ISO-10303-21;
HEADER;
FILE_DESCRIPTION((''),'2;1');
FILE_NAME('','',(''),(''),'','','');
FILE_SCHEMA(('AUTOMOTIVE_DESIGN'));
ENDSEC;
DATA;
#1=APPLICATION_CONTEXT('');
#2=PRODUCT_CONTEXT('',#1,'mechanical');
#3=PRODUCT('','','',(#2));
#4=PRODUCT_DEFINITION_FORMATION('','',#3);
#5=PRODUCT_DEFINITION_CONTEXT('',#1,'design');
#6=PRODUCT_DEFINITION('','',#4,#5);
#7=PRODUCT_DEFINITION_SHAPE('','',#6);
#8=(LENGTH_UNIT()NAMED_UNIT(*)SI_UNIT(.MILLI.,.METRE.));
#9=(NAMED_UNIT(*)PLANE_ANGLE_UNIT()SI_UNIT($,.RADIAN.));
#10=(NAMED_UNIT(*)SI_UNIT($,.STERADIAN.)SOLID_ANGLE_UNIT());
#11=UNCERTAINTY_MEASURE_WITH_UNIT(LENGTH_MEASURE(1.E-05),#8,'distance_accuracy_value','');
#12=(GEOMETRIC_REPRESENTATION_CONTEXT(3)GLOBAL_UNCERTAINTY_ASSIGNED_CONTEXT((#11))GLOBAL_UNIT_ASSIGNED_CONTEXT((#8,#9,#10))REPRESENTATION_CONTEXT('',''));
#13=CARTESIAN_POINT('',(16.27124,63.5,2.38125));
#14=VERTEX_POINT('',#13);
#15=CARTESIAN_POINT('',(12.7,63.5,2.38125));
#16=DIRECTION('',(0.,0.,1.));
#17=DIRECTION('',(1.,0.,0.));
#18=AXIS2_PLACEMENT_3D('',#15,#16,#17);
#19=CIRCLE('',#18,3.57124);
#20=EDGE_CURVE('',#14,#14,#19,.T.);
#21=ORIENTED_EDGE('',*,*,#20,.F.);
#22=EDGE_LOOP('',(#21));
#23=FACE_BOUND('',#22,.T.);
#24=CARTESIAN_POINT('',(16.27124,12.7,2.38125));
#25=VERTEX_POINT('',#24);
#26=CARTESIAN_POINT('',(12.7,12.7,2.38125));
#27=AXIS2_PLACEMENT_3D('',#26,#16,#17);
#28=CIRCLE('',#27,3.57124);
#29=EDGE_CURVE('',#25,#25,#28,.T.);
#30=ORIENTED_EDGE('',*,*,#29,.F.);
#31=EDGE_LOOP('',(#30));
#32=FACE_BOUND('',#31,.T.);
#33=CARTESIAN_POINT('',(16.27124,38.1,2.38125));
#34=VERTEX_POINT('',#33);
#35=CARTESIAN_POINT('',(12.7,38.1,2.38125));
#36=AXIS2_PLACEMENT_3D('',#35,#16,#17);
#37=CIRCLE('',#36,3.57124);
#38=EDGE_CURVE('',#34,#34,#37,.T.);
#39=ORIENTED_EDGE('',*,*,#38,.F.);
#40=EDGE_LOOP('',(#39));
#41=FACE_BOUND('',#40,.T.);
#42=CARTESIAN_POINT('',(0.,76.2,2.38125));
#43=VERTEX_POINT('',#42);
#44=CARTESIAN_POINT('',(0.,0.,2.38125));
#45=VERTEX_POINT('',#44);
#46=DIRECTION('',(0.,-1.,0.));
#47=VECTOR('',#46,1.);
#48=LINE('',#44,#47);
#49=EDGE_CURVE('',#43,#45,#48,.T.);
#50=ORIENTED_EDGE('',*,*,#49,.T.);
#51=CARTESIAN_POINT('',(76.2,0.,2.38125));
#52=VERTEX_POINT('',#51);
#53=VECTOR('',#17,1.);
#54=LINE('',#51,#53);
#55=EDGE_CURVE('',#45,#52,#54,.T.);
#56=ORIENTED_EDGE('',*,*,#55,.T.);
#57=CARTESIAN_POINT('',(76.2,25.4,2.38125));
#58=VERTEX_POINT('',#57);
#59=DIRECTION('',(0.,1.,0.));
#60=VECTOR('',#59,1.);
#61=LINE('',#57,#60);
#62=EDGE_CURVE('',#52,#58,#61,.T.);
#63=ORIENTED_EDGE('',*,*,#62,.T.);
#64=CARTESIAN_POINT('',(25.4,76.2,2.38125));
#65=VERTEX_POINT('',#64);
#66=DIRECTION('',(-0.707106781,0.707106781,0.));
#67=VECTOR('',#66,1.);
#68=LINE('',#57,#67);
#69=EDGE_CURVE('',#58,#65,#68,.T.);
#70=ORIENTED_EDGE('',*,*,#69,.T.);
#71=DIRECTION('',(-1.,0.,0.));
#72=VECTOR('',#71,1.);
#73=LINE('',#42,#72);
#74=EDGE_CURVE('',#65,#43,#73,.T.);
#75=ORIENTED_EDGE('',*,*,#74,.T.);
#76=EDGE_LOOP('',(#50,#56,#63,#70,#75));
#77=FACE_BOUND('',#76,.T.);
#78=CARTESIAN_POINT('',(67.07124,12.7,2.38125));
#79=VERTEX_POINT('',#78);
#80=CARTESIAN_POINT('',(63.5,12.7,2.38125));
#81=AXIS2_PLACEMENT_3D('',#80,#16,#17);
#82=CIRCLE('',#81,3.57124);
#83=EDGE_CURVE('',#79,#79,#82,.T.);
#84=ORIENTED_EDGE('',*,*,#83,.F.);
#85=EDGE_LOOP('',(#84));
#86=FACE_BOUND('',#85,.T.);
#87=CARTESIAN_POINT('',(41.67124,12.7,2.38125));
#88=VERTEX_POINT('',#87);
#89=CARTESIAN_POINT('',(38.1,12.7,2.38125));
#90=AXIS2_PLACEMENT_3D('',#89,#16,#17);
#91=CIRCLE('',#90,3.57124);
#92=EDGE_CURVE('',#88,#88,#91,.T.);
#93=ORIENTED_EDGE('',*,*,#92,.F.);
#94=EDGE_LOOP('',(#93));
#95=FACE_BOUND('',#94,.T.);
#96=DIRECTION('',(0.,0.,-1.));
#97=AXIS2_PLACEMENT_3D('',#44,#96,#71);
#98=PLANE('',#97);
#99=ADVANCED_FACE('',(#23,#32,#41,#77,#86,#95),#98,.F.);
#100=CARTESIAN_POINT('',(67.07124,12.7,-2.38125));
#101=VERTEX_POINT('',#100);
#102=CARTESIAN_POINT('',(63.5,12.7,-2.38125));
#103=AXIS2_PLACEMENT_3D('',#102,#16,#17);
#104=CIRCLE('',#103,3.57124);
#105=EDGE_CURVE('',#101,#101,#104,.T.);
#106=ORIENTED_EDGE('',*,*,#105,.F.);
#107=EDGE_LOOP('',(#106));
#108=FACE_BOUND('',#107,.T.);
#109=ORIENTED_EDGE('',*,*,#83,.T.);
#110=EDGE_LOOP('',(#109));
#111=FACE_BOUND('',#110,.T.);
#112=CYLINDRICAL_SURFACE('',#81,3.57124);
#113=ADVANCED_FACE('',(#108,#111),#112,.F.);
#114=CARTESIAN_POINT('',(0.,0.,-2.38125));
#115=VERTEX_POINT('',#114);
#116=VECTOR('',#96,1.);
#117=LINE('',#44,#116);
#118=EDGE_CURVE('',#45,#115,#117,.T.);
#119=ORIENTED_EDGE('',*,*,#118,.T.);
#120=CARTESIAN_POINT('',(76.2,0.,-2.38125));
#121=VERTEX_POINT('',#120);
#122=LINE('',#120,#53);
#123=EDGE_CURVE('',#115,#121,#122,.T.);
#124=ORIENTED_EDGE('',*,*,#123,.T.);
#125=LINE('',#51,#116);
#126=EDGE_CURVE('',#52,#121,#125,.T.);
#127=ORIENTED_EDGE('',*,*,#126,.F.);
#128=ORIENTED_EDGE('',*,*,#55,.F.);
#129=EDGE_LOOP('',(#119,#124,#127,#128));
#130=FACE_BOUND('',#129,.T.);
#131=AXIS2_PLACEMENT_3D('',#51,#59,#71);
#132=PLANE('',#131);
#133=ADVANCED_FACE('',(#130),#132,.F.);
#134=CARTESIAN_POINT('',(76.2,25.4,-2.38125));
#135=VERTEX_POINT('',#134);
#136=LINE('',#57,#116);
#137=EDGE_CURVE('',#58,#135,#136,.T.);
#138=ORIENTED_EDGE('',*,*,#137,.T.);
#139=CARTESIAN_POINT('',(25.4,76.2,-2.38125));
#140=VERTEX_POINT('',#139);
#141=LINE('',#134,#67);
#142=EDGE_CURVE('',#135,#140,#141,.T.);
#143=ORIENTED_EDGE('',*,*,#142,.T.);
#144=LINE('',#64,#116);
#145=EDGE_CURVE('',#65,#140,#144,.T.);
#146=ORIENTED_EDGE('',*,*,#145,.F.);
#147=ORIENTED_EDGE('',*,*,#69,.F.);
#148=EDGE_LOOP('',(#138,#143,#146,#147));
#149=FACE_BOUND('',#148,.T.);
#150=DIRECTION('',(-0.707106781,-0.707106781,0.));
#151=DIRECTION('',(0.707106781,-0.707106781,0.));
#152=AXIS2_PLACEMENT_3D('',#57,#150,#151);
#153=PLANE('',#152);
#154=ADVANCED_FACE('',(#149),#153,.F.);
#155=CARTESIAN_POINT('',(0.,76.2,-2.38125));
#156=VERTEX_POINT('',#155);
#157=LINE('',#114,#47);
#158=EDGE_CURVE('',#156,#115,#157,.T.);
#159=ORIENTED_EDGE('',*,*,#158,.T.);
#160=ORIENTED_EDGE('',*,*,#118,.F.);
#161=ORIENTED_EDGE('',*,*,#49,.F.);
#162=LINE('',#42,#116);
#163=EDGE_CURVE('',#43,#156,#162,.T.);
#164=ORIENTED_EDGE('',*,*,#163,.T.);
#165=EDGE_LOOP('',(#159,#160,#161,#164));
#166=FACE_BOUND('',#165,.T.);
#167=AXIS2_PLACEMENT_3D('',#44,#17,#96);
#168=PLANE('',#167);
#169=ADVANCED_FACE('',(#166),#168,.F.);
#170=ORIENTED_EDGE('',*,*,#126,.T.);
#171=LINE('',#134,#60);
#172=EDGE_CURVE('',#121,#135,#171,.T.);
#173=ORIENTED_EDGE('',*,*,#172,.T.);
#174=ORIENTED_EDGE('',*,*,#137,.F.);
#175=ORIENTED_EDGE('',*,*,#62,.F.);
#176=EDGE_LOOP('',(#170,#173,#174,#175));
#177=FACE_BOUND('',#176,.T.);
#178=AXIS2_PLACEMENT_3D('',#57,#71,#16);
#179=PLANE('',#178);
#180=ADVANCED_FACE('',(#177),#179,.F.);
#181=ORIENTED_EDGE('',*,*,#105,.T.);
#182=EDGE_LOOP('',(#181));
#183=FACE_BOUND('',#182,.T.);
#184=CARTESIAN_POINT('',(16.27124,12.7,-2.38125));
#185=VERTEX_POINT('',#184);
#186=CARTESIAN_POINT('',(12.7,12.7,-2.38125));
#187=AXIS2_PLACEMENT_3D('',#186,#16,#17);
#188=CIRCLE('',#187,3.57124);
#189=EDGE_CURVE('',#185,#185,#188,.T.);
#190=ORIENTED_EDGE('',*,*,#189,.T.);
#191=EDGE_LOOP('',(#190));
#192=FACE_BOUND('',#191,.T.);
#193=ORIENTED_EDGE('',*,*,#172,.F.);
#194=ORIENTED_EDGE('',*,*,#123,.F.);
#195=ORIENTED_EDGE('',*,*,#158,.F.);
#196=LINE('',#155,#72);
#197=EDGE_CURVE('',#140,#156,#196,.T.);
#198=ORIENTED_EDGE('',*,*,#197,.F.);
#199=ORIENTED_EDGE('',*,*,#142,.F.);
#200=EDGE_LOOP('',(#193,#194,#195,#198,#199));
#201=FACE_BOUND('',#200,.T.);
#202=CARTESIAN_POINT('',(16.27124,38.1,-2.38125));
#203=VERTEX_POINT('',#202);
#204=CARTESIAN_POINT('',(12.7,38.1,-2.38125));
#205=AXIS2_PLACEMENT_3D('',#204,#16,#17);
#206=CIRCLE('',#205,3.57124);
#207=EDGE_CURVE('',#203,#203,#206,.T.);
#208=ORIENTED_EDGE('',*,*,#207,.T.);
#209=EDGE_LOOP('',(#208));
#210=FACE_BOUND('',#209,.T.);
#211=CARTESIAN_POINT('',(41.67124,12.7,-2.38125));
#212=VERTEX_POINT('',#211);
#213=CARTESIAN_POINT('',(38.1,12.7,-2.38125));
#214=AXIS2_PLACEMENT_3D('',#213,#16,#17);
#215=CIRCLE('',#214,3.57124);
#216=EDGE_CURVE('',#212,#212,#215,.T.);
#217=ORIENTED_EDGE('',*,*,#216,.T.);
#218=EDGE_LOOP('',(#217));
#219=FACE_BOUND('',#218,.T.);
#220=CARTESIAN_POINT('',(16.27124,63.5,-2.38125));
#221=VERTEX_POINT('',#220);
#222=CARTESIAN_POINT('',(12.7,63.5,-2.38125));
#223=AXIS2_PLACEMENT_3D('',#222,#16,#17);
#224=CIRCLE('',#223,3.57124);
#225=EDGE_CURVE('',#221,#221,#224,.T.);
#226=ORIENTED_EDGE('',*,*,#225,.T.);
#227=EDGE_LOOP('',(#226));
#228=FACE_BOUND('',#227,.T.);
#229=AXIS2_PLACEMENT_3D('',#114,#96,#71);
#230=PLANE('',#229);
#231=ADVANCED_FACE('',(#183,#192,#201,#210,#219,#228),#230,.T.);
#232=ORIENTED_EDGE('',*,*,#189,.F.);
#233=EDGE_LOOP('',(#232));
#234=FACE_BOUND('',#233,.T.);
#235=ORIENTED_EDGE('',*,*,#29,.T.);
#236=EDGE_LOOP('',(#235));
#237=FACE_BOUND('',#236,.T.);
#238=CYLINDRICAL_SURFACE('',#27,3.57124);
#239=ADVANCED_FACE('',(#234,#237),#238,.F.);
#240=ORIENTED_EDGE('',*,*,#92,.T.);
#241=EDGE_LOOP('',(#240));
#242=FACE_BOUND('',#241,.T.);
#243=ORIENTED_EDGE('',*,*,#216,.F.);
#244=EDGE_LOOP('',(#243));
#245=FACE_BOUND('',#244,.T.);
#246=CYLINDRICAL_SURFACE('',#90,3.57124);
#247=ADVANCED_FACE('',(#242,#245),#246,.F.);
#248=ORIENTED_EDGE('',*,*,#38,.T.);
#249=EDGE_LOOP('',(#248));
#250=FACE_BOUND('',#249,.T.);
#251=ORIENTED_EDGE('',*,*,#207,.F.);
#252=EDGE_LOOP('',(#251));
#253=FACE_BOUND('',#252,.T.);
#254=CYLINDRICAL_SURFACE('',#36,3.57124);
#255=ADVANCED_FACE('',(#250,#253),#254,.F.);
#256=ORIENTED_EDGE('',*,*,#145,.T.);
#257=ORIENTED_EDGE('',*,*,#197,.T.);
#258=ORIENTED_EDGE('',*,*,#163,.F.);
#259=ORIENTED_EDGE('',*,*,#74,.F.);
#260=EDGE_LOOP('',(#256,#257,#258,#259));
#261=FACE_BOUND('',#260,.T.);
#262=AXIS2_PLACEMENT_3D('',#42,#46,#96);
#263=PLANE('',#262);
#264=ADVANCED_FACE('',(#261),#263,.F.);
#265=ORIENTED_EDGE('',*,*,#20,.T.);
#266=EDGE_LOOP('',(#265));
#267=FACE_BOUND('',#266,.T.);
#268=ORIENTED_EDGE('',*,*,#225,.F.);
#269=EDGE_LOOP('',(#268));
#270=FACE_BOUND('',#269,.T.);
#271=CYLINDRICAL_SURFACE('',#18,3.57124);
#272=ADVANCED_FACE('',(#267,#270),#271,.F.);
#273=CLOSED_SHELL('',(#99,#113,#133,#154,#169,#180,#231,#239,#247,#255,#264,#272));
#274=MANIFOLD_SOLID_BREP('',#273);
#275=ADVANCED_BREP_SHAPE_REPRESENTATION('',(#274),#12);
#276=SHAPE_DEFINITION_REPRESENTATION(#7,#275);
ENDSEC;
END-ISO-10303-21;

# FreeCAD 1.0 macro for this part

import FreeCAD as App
import Part
import Sketcher
Q = App.Units.Quantity

doc = App.newDocument("Part")
body = doc.addObject("PartDesign::Body", "Body")

# Sketch on XY plane
sketch1 = doc.addObject("Sketcher::SketchObject", "Sketch")
body.addObject(sketch1)
sketch1.AttachmentSupport = (doc.XY_Plane, [""])
sketch1.MapMode = "FlatFace"
sketch1.addGeometry([
    Part.LineSegment(App.Vector(0, 76.2, 0), App.Vector(0, 0, 0)),  # 0
    Part.LineSegment(App.Vector(0, 0, 0), App.Vector(76.2, 0, 0)),  # 1
    Part.LineSegment(App.Vector(76.2, 0, 0), App.Vector(76.2, 25.4, 0)),  # 2
    Part.LineSegment(App.Vector(76.2, 25.4, 0), App.Vector(25.4, 76.2, 0)),  # 3
    Part.LineSegment(App.Vector(25.4, 76.2, 0), App.Vector(0, 76.2, 0)),  # 4
    Part.Circle(App.Vector(63.5, 12.7, 0), App.Vector(0, 0, 1), 3.3),  # 5
    Part.Circle(App.Vector(38.1, 12.7, 0), App.Vector(0, 0, 1), 3.3),  # 6
    Part.Circle(App.Vector(12.7, 12.7, 0), App.Vector(0, 0, 1), 3.3),  # 7
    Part.Circle(App.Vector(12.7, 38.1, 0), App.Vector(0, 0, 1), 3.3),  # 8
    Part.Circle(App.Vector(12.7, 63.5, 0), App.Vector(0, 0, 1), 3.3),  # 9
], False)
sketch1.addConstraint([
    Sketcher.Constraint("Coincident", 0, 2, 1, 1),
    Sketcher.Constraint("Coincident", 1, 2, 2, 1),
    Sketcher.Constraint("Coincident", 2, 2, 3, 1),
    Sketcher.Constraint("Coincident", 3, 2, 4, 1),
    Sketcher.Constraint("Coincident", 4, 2, 0, 1),
    Sketcher.Constraint("Vertical", 0),
    Sketcher.Constraint("Horizontal", 1),
    Sketcher.Constraint("Vertical", 2),
    Sketcher.Constraint("Horizontal", 4),
    Sketcher.Constraint("Coincident", 0, 2, -1, 1),
    Sketcher.Constraint("Equal", 5, 6),
    Sketcher.Constraint("Equal", 6, 7),
    Sketcher.Constraint("Equal", 7, 8),
    Sketcher.Constraint("Equal", 8, 9),
    Sketcher.Constraint("Horizontal", 5, 3, 6, 3),
    Sketcher.Constraint("Horizontal", 6, 3, 7, 3),
    Sketcher.Constraint("Vertical", 7, 3, 8, 3),
    Sketcher.Constraint("Vertical", 8, 3, 9, 3),
    Sketcher.Constraint("Equal", 1, 0),
    Sketcher.Constraint("Equal", 4, 2),
    Sketcher.Constraint("DistanceX", 1, 1, 1, 2, Q("3 in")),
    Sketcher.Constraint("DistanceX", 4, 2, 4, 1, Q("1 in")),
    Sketcher.Constraint("Diameter", 5, Q("0.257 in")),
    Sketcher.Constraint("DistanceX", 6, 3, 5, 3, Q("1 in")),
    Sketcher.Constraint("DistanceX", 7, 3, 6, 3, Q("1 in")),
    Sketcher.Constraint("DistanceY", 7, 3, 8, 3, Q("1 in")),
    Sketcher.Constraint("DistanceY", 8, 3, 9, 3, Q("1 in")),
    Sketcher.Constraint("DistanceX", -1, 1, 5, 3, Q("2.5 in")),
    Sketcher.Constraint("DistanceY", -1, 1, 5, 3, Q("0.5 in")),
])
pad1 = doc.addObject("PartDesign::Pad", "Pad")
body.addObject(pad1)
pad1.Profile = sketch1
pad1.Length = Q("0.1875 in")
pad1.Midplane = True

# Sketch on XY plane
sketch2 = doc.addObject("Sketcher::SketchObject", "Sketch001")
body.addObject(sketch2)
sketch2.AttachmentSupport = (doc.XY_Plane, [""])
sketch2.MapMode = "FlatFace"
sketch2.AttachmentOffset = App.Placement(App.Vector(0, 0, 0.09375 * 25.4), App.Rotation())
sketch2.addGeometry([
    Part.Circle(App.Vector(12.7, 63.5, 0), App.Vector(0, 0, 1), 3.6),  # 0
    Part.Circle(App.Vector(12.7, 38.1, 0), App.Vector(0, 0, 1), 3.6),  # 1
    Part.Circle(App.Vector(12.7, 12.7, 0), App.Vector(0, 0, 1), 3.6),  # 2
    Part.Circle(App.Vector(38.1, 12.7, 0), App.Vector(0, 0, 1), 3.6),  # 3
    Part.Circle(App.Vector(63.5, 12.7, 0), App.Vector(0, 0, 1), 3.6),  # 4
], False)
sketch2.addConstraint([
    Sketcher.Constraint("Equal", 0, 1),
    Sketcher.Constraint("Equal", 1, 2),
    Sketcher.Constraint("Equal", 2, 3),
    Sketcher.Constraint("Equal", 3, 4),
    Sketcher.Constraint("Horizontal", 2, 3, 3, 3),
    Sketcher.Constraint("Horizontal", 3, 3, 4, 3),
    Sketcher.Constraint("Vertical", 0, 3, 1, 3),
    Sketcher.Constraint("Vertical", 1, 3, 2, 3),
    Sketcher.Constraint("DistanceY", 1, 3, 0, 3, Q("1 in")),
    Sketcher.Constraint("DistanceY", 2, 3, 1, 3, Q("1 in")),
    Sketcher.Constraint("DistanceX", 2, 3, 3, 3, Q("1 in")),
    Sketcher.Constraint("DistanceX", 3, 3, 4, 3, Q("1 in")),
    Sketcher.Constraint("Diameter", 0, Q("0.2812 in")),
    Sketcher.Constraint("DistanceX", -1, 1, 0, 3, Q("0.5 in")),
    Sketcher.Constraint("DistanceY", -1, 1, 0, 3, Q("2.5 in")),
])
doc.recompute()
hole = doc.addObject("PartDesign::Hole", "Hole")
body.addObject(hole)
hole.Profile = sketch2
hole.ThreadType = "None"
hole.Diameter = Q("0.2812 in")
hole.DepthType = "ThroughAll"

doc.recompute()
